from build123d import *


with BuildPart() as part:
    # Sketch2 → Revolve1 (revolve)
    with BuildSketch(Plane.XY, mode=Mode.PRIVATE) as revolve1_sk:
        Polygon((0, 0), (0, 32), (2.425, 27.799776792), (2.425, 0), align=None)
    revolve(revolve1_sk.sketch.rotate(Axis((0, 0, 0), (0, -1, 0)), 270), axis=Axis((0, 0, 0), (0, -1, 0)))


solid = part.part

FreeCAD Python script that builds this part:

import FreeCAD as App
import Part
import Sketcher
Q = App.Units.Quantity

doc = App.newDocument("Part")
body = doc.addObject("PartDesign::Body", "Body")

# Sketch on XY plane
sketch1 = doc.addObject("Sketcher::SketchObject", "Sketch")
body.addObject(sketch1)
sketch1.AttachmentSupport = (doc.XY_Plane, [""])
sketch1.MapMode = "FlatFace"
sketch1.addGeometry([
    Part.LineSegment(App.Vector(0, 32, 0), App.Vector(0, 0, 0)),
    Part.LineSegment(App.Vector(0, 0, 0), App.Vector(2.4, 0, 0)),
    Part.LineSegment(App.Vector(2.4, 0, 0), App.Vector(2.4, 27.8, 0)),
    Part.LineSegment(App.Vector(2.4, 27.8, 0), App.Vector(0, 32, 0)),
], False)
sketch1.addConstraint([
    Sketcher.Constraint("Coincident", 0, 2, 1, 1),
    Sketcher.Constraint("Coincident", 1, 2, 2, 1),
    Sketcher.Constraint("Coincident", 2, 2, 3, 1),
    Sketcher.Constraint("Coincident", 3, 2, 0, 1),
    Sketcher.Constraint("Vertical", 0),
    Sketcher.Constraint("Horizontal", 1),
    Sketcher.Constraint("Vertical", 2),
    Sketcher.Constraint("Coincident", 0, 2, -1, 1),
    Sketcher.Constraint("DistanceY", 0, 2, 0, 1, 32.0),
    Sketcher.Constraint("Angle", 3, Q("120 deg")),
    Sketcher.Constraint("Distance", 3, 4.85),
])
revolution = doc.addObject("PartDesign::Revolution", "Revolution")
body.addObject(revolution)
revolution.Profile = sketch1
revolution.ReferenceAxis = (sketch1, ["V_Axis"])
revolution.Angle = 360

doc.recompute()
